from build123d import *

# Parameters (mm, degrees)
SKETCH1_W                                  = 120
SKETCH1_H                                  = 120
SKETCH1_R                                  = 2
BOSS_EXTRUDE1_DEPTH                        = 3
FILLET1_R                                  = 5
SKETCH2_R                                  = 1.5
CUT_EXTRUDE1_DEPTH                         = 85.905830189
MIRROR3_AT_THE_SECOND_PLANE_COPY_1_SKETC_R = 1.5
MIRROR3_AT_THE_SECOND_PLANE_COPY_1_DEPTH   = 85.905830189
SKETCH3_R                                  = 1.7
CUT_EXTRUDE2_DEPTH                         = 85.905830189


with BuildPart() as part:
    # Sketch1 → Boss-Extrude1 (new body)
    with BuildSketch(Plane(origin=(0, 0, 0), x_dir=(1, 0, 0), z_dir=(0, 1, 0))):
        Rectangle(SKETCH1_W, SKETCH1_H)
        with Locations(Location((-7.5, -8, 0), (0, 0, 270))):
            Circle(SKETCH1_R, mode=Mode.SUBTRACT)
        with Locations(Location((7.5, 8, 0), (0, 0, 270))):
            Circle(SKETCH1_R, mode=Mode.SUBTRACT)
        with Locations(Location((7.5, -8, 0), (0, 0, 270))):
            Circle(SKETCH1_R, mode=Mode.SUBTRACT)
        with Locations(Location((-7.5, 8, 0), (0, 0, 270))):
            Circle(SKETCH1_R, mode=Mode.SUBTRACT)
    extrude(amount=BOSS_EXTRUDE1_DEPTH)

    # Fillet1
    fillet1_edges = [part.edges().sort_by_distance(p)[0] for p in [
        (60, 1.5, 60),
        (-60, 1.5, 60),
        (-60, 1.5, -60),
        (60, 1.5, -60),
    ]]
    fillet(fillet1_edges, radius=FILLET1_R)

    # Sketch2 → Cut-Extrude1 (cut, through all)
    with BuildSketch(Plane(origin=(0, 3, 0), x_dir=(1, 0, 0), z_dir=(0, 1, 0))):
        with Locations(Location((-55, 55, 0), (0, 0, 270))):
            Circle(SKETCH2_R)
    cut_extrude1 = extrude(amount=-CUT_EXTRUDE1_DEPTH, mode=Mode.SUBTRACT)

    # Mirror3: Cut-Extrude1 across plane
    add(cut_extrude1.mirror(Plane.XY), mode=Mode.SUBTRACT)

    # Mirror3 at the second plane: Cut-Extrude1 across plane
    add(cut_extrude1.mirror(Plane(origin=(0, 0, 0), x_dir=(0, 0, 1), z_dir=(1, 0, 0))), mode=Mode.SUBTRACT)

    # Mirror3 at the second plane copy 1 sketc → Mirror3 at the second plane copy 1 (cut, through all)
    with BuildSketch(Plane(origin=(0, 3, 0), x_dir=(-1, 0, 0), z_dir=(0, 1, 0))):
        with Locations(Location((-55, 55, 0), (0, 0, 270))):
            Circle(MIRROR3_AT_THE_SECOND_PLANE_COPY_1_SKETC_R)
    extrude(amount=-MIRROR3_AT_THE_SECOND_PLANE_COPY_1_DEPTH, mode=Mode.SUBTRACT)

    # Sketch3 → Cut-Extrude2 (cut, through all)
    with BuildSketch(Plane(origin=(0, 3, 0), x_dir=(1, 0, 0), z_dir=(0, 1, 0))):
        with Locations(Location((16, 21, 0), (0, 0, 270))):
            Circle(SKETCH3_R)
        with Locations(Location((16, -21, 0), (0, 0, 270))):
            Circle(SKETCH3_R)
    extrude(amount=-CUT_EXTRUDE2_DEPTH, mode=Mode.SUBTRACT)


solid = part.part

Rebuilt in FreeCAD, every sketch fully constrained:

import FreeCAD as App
import Part
import Sketcher


def edges_at(feature, points):
    """Names of the edges that pass closest to the given points."""
    edges = feature.Shape.Edges
    near = lambda p: min(range(len(edges)), key=lambda i: edges[i].distToShape(Part.Vertex(*p))[0])
    return sorted({f"Edge{near(p) + 1}" for p in points})


def add_polygon(sketch, points):
    """Adds a closed chain of lines whose ends are joined by coincident constraints."""
    first, n = sketch.GeometryCount, len(points)
    for a, b in zip(points, points[1:] + points[:1]):
        sketch.addGeometry(Part.LineSegment(App.Vector(*a, 0), App.Vector(*b, 0)), False)
    for i in range(n):
        sketch.addConstraint(Sketcher.Constraint("Coincident", first + i, 2, first + (i + 1) % n, 1))

doc = App.newDocument("Part")
body = doc.addObject("PartDesign::Body", "Body")

# Sketch on XZ plane
sketch1 = body.newObject("Sketcher::SketchObject", "Sketch")
sketch1.AttachmentSupport = (doc.getObject("XZ_Plane"), [""])
sketch1.MapMode = "FlatFace"
add_polygon(sketch1, [(-60, -60), (-60, 60), (60, 60), (60, -60)])  # lines 0-3
sketch1.addGeometry(Part.Circle(App.Vector(-7.5, 8, 0), App.Vector(0, 0, 1), 2), False)  # 4
sketch1.addGeometry(Part.Circle(App.Vector(7.5, 8, 0), App.Vector(0, 0, 1), 2), False)  # 5
sketch1.addGeometry(Part.Circle(App.Vector(-7.5, -8, 0), App.Vector(0, 0, 1), 2), False)  # 6
sketch1.addGeometry(Part.Circle(App.Vector(7.5, -8, 0), App.Vector(0, 0, 1), 2), False)  # 7
sketch1.addConstraint([
    Sketcher.Constraint("Vertical", 0),
    Sketcher.Constraint("Horizontal", 1),
    Sketcher.Constraint("Vertical", 2),
    Sketcher.Constraint("Horizontal", 3),
    Sketcher.Constraint("Equal", 4, 5),
    Sketcher.Constraint("Equal", 5, 6),
    Sketcher.Constraint("Equal", 6, 7),
    Sketcher.Constraint("Symmetric", 5, 3, 6, 3, -1, 1),
    Sketcher.Constraint("Symmetric", 4, 3, 7, 3, -1, 1),
    Sketcher.Constraint("Symmetric", 0, 2, 2, 2, -1, 1),
    Sketcher.Constraint("Symmetric", 4, 3, 5, 3, -2),
    Sketcher.Constraint("Equal", 3, 0),
    Sketcher.Constraint("Diameter", 4, 4.0),
    Sketcher.Constraint("DistanceX", 1, 1, 1, 2, 120.0),
    Sketcher.Constraint("DistanceY", -1, 1, 4, 3, 8.0),
    Sketcher.Constraint("DistanceX", 4, 3, 5, 3, 15.0),
])
pad1 = body.newObject("PartDesign::Pad", "Pad")
pad1.Profile = sketch1
pad1.Length = 3
pad1.Reversed = True
doc.recompute()

fillet = body.newObject("PartDesign::Fillet", "Fillet")
fillet.Base = (pad1, edges_at(pad1, [
    (60, 1.5, 60),
    (-60, 1.5, 60),
    (-60, 1.5, -60),
    (60, 1.5, -60),
]))
fillet.Radius = 5

# Sketch on XZ plane
sketch2 = body.newObject("Sketcher::SketchObject", "Sketch001")
sketch2.AttachmentSupport = (doc.getObject("XZ_Plane"), [""])
sketch2.MapMode = "FlatFace"
sketch2.AttachmentOffset = App.Placement(App.Vector(0, 0, -3), App.Rotation())
sketch2.addGeometry(Part.Circle(App.Vector(-55, -55, 0), App.Vector(0, 0, 1), 1.5), False)
sketch2.addConstraint([
    Sketcher.Constraint("Diameter", 0, 3.0),
    Sketcher.Constraint("DistanceX", 0, 3, -1, 1, 55.0),
    Sketcher.Constraint("DistanceY", 0, 3, -1, 1, 55.0),
])
pocket1 = body.newObject("PartDesign::Pocket", "Pocket")
pocket1.Profile = sketch2
pocket1.Type = "ThroughAll"
pocket1.Reversed = True
doc.recompute()

mirrored = body.newObject("PartDesign::Mirrored", "Mirrored")
mirrored.Originals = [pocket1]
mirrored.MirrorPlane = (doc.getObject("XY_Plane"), [""])
body.Tip = mirrored
doc.recompute()

mirrored2 = body.newObject("PartDesign::Mirrored", "Mirrored001")
mirrored2.Originals = [pocket1]
mirrored2.MirrorPlane = (doc.getObject("YZ_Plane"), [""])
body.Tip = mirrored2

# Sketch on XZ plane
sketch3 = body.newObject("Sketcher::SketchObject", "Sketch002")
sketch3.AttachmentSupport = (doc.getObject("XZ_Plane"), [""])
sketch3.MapMode = "FlatFace"
sketch3.AttachmentOffset = App.Placement(App.Vector(0, 0, -3), App.Rotation())
sketch3.addGeometry(Part.Circle(App.Vector(55, 55, 0), App.Vector(0, 0, 1), 1.5), False)
sketch3.addConstraint([
    Sketcher.Constraint("Diameter", 0, 3.0),
    Sketcher.Constraint("DistanceX", -1, 1, 0, 3, 55.0),
    Sketcher.Constraint("DistanceY", -1, 1, 0, 3, 55.0),
])
pocket2 = body.newObject("PartDesign::Pocket", "Pocket001")
pocket2.Profile = sketch3
pocket2.Type = "ThroughAll"
pocket2.Reversed = True

# Sketch on XZ plane
sketch4 = body.newObject("Sketcher::SketchObject", "Sketch003")
sketch4.AttachmentSupport = (doc.getObject("XZ_Plane"), [""])
sketch4.MapMode = "FlatFace"
sketch4.AttachmentOffset = App.Placement(App.Vector(0, 0, -3), App.Rotation())
sketch4.addGeometry([
    Part.Circle(App.Vector(16, -21, 0), App.Vector(0, 0, 1), 1.7),
    Part.Circle(App.Vector(16, 21, 0), App.Vector(0, 0, 1), 1.7),
], False)
sketch4.addConstraint([
    Sketcher.Constraint("Equal", 0, 1),
    Sketcher.Constraint("Symmetric", 0, 3, 1, 3, -1),
    Sketcher.Constraint("Diameter", 0, 3.4),
    Sketcher.Constraint("DistanceX", -1, 1, 0, 3, 16.0),
    Sketcher.Constraint("DistanceY", 0, 3, -1, 1, 21.0),
])
pocket3 = body.newObject("PartDesign::Pocket", "Pocket002")
pocket3.Profile = sketch4
pocket3.Type = "ThroughAll"
pocket3.Reversed = True

doc.recompute()
